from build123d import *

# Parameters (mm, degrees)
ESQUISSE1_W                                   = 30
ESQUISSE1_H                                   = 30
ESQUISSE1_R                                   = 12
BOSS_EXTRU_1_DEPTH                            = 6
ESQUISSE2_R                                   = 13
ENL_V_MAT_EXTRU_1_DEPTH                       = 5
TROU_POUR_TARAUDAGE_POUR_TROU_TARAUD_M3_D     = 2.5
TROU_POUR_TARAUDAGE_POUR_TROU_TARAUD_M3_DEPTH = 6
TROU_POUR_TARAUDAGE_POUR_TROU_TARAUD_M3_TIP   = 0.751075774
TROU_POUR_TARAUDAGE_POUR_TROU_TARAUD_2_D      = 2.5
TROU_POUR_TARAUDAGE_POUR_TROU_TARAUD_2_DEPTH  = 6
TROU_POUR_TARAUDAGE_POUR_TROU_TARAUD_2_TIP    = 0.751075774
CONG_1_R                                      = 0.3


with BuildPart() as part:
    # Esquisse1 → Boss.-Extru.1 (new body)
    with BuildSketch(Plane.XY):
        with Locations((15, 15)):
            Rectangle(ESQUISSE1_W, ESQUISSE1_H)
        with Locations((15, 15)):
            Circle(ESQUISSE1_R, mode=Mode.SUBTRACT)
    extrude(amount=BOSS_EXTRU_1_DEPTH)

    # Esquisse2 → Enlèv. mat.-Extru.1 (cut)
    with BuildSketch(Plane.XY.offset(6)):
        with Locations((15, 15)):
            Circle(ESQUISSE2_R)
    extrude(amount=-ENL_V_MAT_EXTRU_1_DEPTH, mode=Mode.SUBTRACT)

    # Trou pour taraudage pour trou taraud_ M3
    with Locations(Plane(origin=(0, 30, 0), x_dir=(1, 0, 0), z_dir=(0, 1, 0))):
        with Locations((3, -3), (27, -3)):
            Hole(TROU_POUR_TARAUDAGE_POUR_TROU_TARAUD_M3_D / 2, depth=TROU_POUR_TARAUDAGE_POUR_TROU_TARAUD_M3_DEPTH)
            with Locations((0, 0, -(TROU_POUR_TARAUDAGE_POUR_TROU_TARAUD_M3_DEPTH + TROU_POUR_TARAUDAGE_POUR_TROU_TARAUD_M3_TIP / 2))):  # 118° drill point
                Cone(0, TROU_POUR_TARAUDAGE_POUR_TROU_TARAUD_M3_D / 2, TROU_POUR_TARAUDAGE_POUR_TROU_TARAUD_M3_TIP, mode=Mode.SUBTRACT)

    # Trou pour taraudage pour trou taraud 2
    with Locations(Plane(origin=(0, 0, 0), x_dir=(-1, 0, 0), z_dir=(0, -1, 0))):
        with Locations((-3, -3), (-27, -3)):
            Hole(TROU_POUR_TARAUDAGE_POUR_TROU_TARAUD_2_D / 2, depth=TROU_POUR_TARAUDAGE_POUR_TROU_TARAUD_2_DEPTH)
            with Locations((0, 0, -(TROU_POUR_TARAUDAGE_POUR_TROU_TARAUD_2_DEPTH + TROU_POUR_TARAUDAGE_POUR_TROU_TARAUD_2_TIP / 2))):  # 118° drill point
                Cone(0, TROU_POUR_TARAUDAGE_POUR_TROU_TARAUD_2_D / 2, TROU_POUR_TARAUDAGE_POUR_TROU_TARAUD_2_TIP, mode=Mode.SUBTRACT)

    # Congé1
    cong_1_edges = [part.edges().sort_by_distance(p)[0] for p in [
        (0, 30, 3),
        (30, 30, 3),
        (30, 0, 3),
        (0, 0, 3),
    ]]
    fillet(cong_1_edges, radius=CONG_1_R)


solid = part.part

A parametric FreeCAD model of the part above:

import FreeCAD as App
import Part
import Sketcher

V = App.Vector


def edges_at(feature, points):
    """Names of the edges that pass closest to the given points."""
    edges = feature.Shape.Edges
    near = lambda p: min(range(len(edges)), key=lambda i: edges[i].distToShape(Part.Vertex(*p))[0])
    return sorted({f"Edge{near(p) + 1}" for p in points})


def add_polygon(sketch, points):
    """Adds a closed chain of lines whose ends are joined by coincident constraints."""
    first, n = sketch.GeometryCount, len(points)
    for a, b in zip(points, points[1:] + points[:1]):
        sketch.addGeometry(Part.LineSegment(App.Vector(*a, 0), App.Vector(*b, 0)), False)
    for i in range(n):
        sketch.addConstraint(Sketcher.Constraint("Coincident", first + i, 2, first + (i + 1) % n, 1))

doc = App.newDocument("Part")
body = doc.addObject("PartDesign::Body", "Body")

sketch1 = body.newObject("Sketcher::SketchObject", "Sketch")
sketch1.AttachmentSupport = (doc.getObject("XY_Plane"), [""])
sketch1.MapMode = "FlatFace"
add_polygon(sketch1, [(0, 30), (0, 0), (30, 0), (30, 30)])
sketch1.addGeometry(Part.Circle(V(15, 15, 0), V(0, 0, 1), 12), False)
sketch1.addConstraint(Sketcher.Constraint("Vertical", 0))
sketch1.addConstraint(Sketcher.Constraint("Horizontal", 1))
sketch1.addConstraint(Sketcher.Constraint("Vertical", 2))
sketch1.addConstraint(Sketcher.Constraint("Horizontal", 3))
sketch1.addConstraint(Sketcher.Constraint("Coincident", 0, 2, -1, 1))
sketch1.addConstraint(Sketcher.Constraint("Equal", 3, 0))
sketch1.addConstraint(Sketcher.Constraint("Diameter", 4, 24.0))
sketch1.addConstraint(Sketcher.Constraint("DistanceX", 1, 1, 1, 2, 30.0))
sketch1.addConstraint(Sketcher.Constraint("DistanceX", -1, 1, 4, 3, 15.0))
sketch1.addConstraint(Sketcher.Constraint("DistanceY", -1, 1, 4, 3, 15.0))
pad1 = body.newObject("PartDesign::Pad", "Pad")
pad1.Profile = sketch1
pad1.Length = 6

sketch2 = body.newObject("Sketcher::SketchObject", "Sketch001")
sketch2.AttachmentSupport = (doc.getObject("XY_Plane"), [""])
sketch2.MapMode = "FlatFace"
sketch2.AttachmentOffset = App.Placement(V(0, 0, 6), App.Rotation())
sketch2.addGeometry(Part.Circle(V(15, 15, 0), V(0, 0, 1), 13), False)
sketch2.addConstraint(Sketcher.Constraint("Diameter", 0, 26.0))
sketch2.addConstraint(Sketcher.Constraint("DistanceX", -1, 1, 0, 3, 15.0))
sketch2.addConstraint(Sketcher.Constraint("DistanceY", -1, 1, 0, 3, 15.0))
pocket1 = body.newObject("PartDesign::Pocket", "Pocket")
pocket1.Profile = sketch2
pocket1.Length = 5

sketch3 = body.newObject("Sketcher::SketchObject", "Sketch002")
sketch3.AttachmentSupport = (doc.getObject("XZ_Plane"), [""])
sketch3.MapMode = "FlatFace"
sketch3.AttachmentOffset = App.Placement(V(0, 0, -30), App.Rotation())
sketch3.addGeometry(Part.Circle(V(3, 3, 0), V(0, 0, 1), 1.2), False)
sketch3.addGeometry(Part.Circle(V(27, 3, 0), V(0, 0, 1), 1.2), False)
sketch3.addConstraint(Sketcher.Constraint("Equal", 0, 1))
sketch3.addConstraint(Sketcher.Constraint("Horizontal", 0, 3, 1, 3))
sketch3.addConstraint(Sketcher.Constraint("Diameter", 0, 2.5))
sketch3.addConstraint(Sketcher.Constraint("DistanceX", -1, 1, 0, 3, 3.0))
sketch3.addConstraint(Sketcher.Constraint("DistanceY", -1, 1, 0, 3, 3.0))
sketch3.addConstraint(Sketcher.Constraint("DistanceX", -1, 1, 1, 3, 27.0))
doc.recompute()
hole = body.newObject("PartDesign::Hole", "Hole")
hole.Profile = sketch3
hole.ThreadType = "None"
hole.Diameter = 2.5
hole.DepthType = "Dimension"
hole.Depth = 6
hole.DrillPoint = "Angled"
hole.DrillPointAngle = 118
hole.Reversed = True

sketch4 = body.newObject("Sketcher::SketchObject", "Sketch003")
sketch4.AttachmentSupport = (doc.getObject("XZ_Plane"), [""])
sketch4.MapMode = "FlatFace"
sketch4.addGeometry(Part.Circle(V(3, 3, 0), V(0, 0, 1), 1.2), False)
sketch4.addGeometry(Part.Circle(V(27, 3, 0), V(0, 0, 1), 1.2), False)
sketch4.addConstraint(Sketcher.Constraint("Equal", 0, 1))
sketch4.addConstraint(Sketcher.Constraint("Horizontal", 0, 3, 1, 3))
sketch4.addConstraint(Sketcher.Constraint("Diameter", 0, 2.5))
sketch4.addConstraint(Sketcher.Constraint("DistanceX", -1, 1, 0, 3, 3.0))
sketch4.addConstraint(Sketcher.Constraint("DistanceY", -1, 1, 0, 3, 3.0))
sketch4.addConstraint(Sketcher.Constraint("DistanceX", -1, 1, 1, 3, 27.0))
doc.recompute()
hole2 = body.newObject("PartDesign::Hole", "Hole001")
hole2.Profile = sketch4
hole2.ThreadType = "None"
hole2.Diameter = 2.5
hole2.DepthType = "Dimension"
hole2.Depth = 6
hole2.DrillPoint = "Angled"
hole2.DrillPointAngle = 118
doc.recompute()

fillet = body.newObject("PartDesign::Fillet", "Fillet")
fillet.Base = (hole2, edges_at(hole2, [
    (0, 30, 3),
    (30, 30, 3),
    (30, 0, 3),
    (0, 0, 3),
]))
fillet.Radius = 0.3

doc.recompute()
